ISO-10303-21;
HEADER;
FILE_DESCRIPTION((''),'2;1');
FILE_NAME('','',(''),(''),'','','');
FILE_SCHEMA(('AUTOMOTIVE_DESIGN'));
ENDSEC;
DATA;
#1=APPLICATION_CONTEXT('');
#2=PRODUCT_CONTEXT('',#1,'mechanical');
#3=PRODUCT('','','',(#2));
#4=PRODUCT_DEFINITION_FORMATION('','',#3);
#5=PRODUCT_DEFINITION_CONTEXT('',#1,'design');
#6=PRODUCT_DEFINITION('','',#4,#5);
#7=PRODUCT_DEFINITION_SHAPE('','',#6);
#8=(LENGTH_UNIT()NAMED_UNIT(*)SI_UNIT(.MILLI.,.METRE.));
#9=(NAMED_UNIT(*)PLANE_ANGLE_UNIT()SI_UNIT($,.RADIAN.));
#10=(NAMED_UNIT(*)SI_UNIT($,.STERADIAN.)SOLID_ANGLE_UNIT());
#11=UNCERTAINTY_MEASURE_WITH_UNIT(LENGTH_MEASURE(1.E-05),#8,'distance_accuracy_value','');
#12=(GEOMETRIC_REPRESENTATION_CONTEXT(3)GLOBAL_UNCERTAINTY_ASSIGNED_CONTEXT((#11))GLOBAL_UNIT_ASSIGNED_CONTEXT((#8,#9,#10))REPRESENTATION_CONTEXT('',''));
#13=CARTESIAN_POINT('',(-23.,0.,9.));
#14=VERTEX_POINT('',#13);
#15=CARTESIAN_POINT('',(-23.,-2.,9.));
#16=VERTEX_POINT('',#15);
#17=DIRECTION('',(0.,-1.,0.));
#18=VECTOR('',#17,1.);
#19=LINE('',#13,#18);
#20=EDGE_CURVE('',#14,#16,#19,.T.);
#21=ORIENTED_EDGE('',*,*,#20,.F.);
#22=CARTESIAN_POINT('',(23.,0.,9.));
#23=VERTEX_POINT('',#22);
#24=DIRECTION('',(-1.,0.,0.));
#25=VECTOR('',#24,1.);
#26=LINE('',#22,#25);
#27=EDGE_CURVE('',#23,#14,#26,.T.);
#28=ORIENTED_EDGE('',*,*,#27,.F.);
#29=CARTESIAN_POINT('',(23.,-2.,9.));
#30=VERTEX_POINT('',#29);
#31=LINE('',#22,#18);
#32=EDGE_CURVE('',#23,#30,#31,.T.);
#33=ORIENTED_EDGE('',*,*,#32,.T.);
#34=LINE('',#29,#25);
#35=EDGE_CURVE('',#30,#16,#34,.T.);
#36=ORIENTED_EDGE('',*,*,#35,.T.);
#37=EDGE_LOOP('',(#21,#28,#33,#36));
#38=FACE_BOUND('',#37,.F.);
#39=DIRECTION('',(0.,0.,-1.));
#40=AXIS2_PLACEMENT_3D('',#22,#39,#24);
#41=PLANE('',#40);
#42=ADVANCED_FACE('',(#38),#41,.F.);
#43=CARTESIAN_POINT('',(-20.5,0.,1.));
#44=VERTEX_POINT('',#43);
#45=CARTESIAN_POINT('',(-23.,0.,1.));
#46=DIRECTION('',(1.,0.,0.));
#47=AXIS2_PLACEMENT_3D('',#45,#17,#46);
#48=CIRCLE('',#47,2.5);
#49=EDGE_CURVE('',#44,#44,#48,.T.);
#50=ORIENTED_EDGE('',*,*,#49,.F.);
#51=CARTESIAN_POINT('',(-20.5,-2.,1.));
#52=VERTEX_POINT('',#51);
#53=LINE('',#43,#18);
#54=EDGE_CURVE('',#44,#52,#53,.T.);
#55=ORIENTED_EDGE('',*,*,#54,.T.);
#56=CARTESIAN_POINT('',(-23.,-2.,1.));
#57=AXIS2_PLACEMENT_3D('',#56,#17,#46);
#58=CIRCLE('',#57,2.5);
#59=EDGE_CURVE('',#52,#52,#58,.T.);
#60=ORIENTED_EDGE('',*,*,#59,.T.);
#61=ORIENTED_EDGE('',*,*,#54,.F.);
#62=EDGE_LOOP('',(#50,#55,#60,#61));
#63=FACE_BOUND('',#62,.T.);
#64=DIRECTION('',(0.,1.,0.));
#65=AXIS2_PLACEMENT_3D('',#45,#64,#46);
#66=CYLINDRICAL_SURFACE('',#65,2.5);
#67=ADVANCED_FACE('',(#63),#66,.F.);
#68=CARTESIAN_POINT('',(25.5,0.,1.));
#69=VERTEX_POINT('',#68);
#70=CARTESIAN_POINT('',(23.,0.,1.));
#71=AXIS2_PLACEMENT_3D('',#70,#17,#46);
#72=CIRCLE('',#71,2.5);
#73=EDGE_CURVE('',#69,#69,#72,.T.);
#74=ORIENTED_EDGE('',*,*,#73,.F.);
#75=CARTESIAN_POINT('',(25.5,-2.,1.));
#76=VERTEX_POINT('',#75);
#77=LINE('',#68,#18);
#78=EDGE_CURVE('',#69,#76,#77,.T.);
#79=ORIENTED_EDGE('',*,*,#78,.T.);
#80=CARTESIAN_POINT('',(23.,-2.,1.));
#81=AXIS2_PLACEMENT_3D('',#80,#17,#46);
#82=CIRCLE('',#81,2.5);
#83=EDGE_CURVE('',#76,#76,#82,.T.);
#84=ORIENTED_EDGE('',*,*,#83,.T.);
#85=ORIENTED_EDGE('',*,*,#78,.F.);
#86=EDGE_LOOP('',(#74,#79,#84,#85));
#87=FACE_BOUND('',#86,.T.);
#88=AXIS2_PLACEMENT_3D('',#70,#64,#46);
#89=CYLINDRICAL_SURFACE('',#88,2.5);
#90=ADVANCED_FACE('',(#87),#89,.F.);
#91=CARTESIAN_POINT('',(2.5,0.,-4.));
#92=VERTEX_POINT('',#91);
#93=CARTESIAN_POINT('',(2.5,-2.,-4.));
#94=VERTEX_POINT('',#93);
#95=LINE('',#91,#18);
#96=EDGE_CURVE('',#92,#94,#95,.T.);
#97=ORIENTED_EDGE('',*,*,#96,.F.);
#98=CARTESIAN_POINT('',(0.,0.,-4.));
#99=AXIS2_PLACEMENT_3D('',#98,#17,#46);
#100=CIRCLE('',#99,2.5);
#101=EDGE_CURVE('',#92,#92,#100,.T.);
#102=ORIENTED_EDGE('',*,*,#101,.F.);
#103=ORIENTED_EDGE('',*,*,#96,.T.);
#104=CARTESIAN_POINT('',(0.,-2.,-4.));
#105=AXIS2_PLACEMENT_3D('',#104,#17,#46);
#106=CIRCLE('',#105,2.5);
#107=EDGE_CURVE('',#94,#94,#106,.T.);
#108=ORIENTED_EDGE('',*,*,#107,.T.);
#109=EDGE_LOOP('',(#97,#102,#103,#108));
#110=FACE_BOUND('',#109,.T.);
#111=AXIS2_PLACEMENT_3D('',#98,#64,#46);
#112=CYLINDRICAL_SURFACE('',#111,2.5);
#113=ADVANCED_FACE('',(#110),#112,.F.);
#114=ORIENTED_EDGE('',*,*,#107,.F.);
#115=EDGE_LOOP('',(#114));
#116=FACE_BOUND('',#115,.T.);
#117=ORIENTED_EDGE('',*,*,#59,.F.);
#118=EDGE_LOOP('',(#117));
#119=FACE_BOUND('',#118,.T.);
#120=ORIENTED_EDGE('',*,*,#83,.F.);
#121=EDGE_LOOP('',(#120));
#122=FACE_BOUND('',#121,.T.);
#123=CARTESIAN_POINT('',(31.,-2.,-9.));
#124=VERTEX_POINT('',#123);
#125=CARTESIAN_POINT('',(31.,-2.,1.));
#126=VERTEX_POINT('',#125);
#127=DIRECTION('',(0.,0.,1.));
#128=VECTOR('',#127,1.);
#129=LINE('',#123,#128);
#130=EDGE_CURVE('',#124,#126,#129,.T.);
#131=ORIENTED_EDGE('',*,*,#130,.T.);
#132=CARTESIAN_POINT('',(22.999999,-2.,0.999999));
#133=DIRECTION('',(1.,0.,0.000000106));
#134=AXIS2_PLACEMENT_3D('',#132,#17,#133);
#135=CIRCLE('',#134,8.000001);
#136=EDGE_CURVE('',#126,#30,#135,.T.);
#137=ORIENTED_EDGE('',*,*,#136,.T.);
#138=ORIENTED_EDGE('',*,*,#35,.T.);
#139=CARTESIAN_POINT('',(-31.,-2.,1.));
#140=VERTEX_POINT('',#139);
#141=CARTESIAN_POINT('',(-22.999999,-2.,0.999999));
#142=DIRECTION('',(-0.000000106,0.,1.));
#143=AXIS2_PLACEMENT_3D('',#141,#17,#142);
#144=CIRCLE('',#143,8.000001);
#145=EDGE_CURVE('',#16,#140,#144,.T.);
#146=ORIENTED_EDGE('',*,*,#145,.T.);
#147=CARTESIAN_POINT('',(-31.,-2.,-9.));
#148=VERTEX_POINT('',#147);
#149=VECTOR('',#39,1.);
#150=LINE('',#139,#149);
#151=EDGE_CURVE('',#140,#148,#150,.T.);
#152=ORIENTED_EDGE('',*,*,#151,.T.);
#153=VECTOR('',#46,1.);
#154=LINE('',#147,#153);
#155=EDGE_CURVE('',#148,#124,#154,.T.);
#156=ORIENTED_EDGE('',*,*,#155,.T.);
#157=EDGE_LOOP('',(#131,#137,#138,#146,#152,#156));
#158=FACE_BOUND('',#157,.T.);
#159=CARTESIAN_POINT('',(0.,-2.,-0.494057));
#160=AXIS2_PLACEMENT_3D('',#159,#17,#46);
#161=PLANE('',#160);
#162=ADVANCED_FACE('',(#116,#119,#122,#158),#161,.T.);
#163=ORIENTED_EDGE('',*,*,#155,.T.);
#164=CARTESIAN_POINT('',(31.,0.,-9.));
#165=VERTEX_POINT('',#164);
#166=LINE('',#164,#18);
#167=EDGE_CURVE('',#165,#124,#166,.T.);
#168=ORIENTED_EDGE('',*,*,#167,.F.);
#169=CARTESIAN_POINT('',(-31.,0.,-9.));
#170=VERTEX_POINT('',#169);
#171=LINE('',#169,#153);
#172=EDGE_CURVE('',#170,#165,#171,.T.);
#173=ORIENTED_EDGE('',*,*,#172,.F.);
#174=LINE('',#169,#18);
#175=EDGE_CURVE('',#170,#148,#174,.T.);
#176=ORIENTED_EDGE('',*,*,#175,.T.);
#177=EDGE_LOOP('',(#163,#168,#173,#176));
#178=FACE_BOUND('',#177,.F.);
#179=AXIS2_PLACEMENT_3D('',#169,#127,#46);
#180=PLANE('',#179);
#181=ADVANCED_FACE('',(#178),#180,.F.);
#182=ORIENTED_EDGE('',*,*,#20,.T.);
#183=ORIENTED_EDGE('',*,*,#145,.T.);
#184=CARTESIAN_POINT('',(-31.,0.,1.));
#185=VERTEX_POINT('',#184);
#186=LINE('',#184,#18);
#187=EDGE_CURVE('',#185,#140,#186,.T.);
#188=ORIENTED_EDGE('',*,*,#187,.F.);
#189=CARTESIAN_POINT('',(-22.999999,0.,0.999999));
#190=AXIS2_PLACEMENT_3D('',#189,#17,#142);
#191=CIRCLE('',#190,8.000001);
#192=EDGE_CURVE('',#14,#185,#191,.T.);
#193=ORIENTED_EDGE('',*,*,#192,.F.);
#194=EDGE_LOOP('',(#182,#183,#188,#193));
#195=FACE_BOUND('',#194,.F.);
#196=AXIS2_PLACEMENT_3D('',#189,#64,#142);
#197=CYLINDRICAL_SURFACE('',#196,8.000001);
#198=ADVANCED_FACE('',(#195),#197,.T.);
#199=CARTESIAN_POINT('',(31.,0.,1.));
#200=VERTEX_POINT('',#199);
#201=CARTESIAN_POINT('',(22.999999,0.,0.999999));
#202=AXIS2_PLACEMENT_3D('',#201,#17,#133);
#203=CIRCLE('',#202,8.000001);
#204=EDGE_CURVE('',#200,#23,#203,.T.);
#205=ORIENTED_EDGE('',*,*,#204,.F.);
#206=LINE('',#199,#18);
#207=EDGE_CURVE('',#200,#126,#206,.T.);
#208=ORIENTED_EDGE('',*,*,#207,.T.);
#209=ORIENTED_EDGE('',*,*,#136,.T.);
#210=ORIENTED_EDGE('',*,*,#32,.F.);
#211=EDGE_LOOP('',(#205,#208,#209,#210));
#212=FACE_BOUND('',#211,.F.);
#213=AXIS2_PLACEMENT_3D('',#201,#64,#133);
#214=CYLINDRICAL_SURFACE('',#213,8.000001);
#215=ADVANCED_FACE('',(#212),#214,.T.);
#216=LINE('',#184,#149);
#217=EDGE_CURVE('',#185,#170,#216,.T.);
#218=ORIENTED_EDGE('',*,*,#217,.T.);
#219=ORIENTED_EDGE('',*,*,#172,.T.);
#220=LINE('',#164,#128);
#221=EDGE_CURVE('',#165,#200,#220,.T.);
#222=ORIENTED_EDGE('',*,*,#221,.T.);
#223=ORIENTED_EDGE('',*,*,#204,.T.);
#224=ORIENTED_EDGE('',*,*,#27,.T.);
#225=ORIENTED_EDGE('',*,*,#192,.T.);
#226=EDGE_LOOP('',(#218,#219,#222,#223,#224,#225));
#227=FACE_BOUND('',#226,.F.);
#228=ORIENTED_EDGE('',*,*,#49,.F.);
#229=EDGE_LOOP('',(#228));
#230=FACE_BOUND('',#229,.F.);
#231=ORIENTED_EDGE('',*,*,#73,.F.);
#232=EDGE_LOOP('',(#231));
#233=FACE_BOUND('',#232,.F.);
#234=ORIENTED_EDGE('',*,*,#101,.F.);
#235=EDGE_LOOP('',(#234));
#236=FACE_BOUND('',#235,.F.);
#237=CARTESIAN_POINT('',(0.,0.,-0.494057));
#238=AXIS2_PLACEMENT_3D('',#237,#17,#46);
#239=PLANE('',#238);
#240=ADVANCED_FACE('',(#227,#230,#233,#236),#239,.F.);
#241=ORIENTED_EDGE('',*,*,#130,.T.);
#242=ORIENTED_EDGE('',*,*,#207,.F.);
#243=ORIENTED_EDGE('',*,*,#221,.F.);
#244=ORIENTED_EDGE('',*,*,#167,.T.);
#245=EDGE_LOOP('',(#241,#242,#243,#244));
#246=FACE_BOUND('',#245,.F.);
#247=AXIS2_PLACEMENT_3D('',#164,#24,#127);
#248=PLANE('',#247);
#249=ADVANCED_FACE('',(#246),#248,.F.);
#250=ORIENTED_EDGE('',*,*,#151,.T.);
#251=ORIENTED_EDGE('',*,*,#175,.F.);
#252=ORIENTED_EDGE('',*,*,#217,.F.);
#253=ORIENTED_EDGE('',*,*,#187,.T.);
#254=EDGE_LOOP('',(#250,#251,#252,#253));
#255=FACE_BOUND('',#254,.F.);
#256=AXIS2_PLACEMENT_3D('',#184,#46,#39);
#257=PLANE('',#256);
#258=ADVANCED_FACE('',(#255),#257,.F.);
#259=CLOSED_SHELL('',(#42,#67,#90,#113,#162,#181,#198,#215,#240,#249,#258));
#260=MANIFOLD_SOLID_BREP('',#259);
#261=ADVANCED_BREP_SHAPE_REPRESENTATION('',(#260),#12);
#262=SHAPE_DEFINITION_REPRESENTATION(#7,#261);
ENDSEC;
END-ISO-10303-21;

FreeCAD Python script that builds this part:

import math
import FreeCAD as App
import Part
import Sketcher

V = App.Vector
Q = App.Units.Quantity

doc = App.newDocument("Part")
params = doc.addObject("Spreadsheet::Sheet", "Params")
for row, (alias, value) in enumerate([
    ("sketch1_diameter", "5 mm"),
    ("sketch1_radius", "8.000001 mm"),
    ("sketch1_width", "62 mm"),
    ("sketch1_height", "10 mm"),
    ("pad1_length", "2 mm"),
], start=1):
    params.set(f"A{row}", alias)
    params.set(f"B{row}", "=" + value)
    params.setAlias(f"B{row}", alias)

body = doc.addObject("PartDesign::Body", "Body")

sketch1 = body.newObject("Sketcher::SketchObject", "Sketch")
sketch1.AttachmentSupport = (doc.getObject("XZ_Plane"), [""])
sketch1.MapMode = "FlatFace"
sketch1.addGeometry([
    Part.LineSegment(V(-31, -9, 0), V(31, -9, 0)),
    Part.LineSegment(V(31, -9, 0), V(31, 1, 0)),
    Part.ArcOfCircle(Part.Circle(V(23, 1, 0), V(0, 0, 1), 8), math.radians(0), math.radians(90)),
    Part.LineSegment(V(23, 9, 0), V(-23, 9, 0)),
    Part.ArcOfCircle(Part.Circle(V(-23, 1, 0), V(0, 0, 1), 8), math.radians(90), math.radians(180)),
    Part.LineSegment(V(-31, 1, 0), V(-31, -9, 0)),
    Part.Circle(V(0, -4, 0), V(0, 0, 1), 2.5),
    Part.Circle(V(-23, 1, 0), V(0, 0, 1), 2.5),
    Part.Circle(V(23, 1, 0), V(0, 0, 1), 2.5),
], False)
sketch1.addConstraint([
    Sketcher.Constraint("Coincident", 0, 2, 1, 1),
    Sketcher.Constraint("Tangent", 1, 2, 2, 1),
    Sketcher.Constraint("Tangent", 2, 2, 3, 1),
    Sketcher.Constraint("Tangent", 3, 2, 4, 1),
    Sketcher.Constraint("Tangent", 4, 2, 5, 1),
    Sketcher.Constraint("Coincident", 5, 2, 0, 1),
    Sketcher.Constraint("Horizontal", 0),
    Sketcher.Constraint("Vertical", 1),
    Sketcher.Constraint("Horizontal", 3),
    Sketcher.Constraint("Vertical", 5),
    Sketcher.Constraint("Coincident", 7, 3, 4, 3),
    Sketcher.Constraint("Coincident", 8, 3, 2, 3),
    Sketcher.Constraint("Equal", 2, 4),
    Sketcher.Constraint("Equal", 6, 7),
    Sketcher.Constraint("Equal", 7, 8),
    Sketcher.Constraint("PointOnObject", 6, 3, -2),
    Sketcher.Constraint("Diameter", 6, Q("5 mm")),
    Sketcher.Constraint("Radius", 2, Q("8.000001 mm")),
    Sketcher.Constraint("DistanceX", 0, 1, 0, 2, Q("62 mm")),
    Sketcher.Constraint("DistanceY", 1, 1, 1, 2, Q("10 mm")),
    Sketcher.Constraint("DistanceX", -1, 1, 2, 3, Q("22.999999 mm")),
    Sketcher.Constraint("DistanceY", -1, 1, 2, 3, Q("0.999999 mm")),
    Sketcher.Constraint("DistanceY", 6, 3, -1, 1, Q("4 mm")),
])
sketch1.setExpression("Constraints[16]", "Params.sketch1_diameter")
sketch1.setExpression("Constraints[17]", "Params.sketch1_radius")
sketch1.setExpression("Constraints[18]", "Params.sketch1_width")
sketch1.setExpression("Constraints[19]", "Params.sketch1_height")
pad1 = body.newObject("PartDesign::Pad", "Pad")
pad1.Profile = sketch1
pad1.setExpression("Length", "Params.pad1_length")

doc.recompute()
